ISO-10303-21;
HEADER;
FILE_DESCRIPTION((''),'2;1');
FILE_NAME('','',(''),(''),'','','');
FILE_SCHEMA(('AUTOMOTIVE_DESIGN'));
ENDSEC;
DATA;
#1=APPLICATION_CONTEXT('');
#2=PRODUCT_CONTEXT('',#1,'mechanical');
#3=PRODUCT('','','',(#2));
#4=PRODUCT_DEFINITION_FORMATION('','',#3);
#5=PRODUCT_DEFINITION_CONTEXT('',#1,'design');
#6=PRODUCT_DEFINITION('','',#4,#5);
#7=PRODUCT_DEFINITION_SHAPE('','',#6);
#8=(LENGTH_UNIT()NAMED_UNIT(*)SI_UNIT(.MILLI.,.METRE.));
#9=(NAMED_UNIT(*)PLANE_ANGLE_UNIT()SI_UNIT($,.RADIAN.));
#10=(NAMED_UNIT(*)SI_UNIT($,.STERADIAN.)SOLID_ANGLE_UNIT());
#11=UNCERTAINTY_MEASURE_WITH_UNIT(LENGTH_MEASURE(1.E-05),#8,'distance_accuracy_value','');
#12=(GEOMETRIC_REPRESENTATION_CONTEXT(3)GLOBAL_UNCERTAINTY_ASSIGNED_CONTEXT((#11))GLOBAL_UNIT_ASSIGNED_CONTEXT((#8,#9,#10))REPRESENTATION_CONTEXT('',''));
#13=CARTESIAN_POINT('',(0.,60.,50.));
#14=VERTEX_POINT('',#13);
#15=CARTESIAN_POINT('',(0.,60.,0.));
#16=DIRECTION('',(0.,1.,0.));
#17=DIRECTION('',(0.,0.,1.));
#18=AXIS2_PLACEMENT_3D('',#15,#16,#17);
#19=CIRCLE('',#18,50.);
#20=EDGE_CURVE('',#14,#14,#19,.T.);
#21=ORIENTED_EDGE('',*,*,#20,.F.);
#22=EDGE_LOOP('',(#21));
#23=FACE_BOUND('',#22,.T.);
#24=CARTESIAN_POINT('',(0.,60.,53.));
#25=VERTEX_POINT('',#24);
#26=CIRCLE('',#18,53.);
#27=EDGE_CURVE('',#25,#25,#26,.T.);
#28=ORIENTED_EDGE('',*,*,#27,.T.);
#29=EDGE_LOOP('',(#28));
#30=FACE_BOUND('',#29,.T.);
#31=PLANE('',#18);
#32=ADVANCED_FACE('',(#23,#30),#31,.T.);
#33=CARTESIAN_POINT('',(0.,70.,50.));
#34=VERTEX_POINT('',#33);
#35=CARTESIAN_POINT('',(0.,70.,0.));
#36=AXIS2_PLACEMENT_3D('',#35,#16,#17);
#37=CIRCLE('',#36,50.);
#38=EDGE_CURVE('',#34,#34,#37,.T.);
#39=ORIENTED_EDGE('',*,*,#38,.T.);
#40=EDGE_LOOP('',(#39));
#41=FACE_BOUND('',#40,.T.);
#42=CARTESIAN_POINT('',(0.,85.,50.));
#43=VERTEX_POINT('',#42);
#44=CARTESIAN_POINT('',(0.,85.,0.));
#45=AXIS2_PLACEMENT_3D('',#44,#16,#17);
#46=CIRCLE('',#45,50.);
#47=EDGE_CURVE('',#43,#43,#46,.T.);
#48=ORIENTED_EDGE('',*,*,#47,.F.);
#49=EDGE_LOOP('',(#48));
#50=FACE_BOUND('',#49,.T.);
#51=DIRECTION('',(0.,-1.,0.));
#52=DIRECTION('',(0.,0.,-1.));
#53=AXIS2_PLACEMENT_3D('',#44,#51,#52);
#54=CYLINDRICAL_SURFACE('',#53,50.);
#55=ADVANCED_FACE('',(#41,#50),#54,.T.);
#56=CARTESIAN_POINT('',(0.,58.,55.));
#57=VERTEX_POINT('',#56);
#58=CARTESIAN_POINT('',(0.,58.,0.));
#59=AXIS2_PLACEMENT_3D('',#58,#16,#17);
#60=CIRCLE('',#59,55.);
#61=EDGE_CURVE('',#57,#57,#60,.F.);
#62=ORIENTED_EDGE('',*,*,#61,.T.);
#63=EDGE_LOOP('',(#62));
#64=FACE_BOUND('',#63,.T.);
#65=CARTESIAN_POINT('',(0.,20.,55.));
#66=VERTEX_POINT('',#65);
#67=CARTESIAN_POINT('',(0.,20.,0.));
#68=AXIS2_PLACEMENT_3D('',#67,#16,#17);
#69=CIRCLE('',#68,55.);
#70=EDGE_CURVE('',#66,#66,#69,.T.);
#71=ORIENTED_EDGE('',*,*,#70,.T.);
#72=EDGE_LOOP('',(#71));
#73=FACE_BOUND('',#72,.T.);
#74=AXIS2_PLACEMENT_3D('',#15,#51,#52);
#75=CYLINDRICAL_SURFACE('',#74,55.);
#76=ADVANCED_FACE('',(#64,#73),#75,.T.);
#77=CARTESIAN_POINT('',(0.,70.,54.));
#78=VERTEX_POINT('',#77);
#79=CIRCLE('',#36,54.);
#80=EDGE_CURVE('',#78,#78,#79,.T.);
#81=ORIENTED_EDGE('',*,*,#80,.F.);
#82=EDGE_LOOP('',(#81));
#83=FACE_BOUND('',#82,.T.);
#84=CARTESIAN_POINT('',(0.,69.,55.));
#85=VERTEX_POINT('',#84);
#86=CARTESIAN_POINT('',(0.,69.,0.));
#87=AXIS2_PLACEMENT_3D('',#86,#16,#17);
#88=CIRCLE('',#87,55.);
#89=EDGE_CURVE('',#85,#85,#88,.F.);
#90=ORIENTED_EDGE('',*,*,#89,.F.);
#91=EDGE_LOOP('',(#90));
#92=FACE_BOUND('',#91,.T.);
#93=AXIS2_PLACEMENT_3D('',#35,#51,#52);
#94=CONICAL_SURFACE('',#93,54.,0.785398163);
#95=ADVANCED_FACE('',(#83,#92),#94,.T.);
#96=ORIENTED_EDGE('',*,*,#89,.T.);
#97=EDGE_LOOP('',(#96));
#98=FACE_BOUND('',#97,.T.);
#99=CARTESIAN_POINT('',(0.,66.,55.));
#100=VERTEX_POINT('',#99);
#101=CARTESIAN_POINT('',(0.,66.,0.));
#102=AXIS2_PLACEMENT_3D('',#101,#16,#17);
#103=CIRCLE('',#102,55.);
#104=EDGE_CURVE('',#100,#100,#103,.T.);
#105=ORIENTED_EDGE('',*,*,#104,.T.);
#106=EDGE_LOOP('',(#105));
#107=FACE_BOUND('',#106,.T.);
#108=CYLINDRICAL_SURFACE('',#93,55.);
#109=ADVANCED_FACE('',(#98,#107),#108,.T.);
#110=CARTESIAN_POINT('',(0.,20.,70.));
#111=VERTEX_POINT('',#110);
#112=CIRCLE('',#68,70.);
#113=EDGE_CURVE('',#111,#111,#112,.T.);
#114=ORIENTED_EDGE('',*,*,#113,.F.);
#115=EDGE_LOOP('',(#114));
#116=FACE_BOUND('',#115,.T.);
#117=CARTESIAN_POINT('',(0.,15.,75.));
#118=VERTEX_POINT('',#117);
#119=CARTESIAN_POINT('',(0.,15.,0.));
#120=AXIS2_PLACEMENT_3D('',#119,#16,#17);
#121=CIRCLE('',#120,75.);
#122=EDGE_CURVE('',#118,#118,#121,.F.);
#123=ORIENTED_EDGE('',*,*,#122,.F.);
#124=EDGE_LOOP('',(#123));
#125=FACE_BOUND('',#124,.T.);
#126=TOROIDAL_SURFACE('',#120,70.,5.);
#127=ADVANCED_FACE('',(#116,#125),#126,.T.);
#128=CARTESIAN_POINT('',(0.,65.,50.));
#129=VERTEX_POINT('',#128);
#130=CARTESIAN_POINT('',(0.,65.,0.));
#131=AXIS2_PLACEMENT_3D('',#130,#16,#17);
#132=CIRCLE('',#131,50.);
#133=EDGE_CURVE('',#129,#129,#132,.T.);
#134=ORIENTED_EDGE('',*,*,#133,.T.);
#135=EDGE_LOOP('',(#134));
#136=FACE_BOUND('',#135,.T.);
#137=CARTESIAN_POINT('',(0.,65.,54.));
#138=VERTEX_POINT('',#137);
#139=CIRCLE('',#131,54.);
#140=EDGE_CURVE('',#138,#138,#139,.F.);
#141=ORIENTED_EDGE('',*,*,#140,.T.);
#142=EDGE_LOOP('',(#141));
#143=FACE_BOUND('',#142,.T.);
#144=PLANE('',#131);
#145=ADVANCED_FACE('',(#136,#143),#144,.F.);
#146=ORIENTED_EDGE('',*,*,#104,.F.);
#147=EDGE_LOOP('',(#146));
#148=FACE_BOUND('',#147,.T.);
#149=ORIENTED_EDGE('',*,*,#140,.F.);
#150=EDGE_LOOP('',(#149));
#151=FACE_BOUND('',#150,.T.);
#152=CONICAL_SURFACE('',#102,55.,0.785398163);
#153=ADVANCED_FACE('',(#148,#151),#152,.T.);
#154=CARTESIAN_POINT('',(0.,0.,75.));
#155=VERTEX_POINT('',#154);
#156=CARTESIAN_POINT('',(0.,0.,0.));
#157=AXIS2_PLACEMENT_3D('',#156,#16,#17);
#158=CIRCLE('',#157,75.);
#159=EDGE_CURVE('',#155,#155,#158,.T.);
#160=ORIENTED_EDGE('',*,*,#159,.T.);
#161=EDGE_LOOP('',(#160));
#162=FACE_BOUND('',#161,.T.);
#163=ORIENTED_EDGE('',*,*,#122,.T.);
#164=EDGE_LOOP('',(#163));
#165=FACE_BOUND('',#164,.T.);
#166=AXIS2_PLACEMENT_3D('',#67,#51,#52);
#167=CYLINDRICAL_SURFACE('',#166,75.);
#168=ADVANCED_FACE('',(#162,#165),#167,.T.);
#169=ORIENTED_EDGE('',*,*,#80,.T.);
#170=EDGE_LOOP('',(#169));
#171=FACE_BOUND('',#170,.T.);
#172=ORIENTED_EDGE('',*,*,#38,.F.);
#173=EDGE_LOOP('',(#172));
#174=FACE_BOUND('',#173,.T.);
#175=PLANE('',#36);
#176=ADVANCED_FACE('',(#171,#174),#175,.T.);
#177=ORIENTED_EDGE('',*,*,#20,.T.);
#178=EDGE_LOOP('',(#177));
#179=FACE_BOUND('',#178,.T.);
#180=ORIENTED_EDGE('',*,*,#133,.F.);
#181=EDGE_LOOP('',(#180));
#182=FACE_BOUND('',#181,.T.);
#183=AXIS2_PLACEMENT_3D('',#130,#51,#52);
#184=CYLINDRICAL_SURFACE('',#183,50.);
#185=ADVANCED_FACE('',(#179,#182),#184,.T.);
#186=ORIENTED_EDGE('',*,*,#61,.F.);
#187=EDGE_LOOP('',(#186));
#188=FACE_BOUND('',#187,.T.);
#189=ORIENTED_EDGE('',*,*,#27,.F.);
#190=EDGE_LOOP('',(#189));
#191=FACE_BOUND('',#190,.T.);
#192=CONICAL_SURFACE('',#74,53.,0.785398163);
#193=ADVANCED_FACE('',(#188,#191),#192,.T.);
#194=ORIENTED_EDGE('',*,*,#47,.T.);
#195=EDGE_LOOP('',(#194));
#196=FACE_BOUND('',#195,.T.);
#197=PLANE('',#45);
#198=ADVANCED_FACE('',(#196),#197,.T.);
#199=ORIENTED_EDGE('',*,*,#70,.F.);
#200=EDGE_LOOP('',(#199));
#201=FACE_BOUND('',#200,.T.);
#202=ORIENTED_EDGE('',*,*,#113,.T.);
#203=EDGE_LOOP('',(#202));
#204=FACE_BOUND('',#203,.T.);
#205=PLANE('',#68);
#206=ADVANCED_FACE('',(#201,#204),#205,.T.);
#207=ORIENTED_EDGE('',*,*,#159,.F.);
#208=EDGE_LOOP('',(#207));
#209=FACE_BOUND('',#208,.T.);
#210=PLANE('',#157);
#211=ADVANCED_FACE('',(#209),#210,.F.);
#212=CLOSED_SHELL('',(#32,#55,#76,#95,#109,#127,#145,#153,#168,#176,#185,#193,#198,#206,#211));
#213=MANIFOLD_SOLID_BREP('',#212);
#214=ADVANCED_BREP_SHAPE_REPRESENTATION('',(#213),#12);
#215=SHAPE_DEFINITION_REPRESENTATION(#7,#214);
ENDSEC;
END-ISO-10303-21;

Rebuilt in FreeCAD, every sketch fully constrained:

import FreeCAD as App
import Part
import Sketcher
from FreeCAD import Vector
Q = App.Units.Quantity


def edges_at(feature, points):
    """Names of the edges that pass closest to the given points."""
    edges = feature.Shape.Edges
    near = lambda p: min(range(len(edges)), key=lambda i: edges[i].distToShape(Part.Vertex(*p))[0])
    return sorted({f"Edge{near(p) + 1}" for p in points})

doc = App.newDocument("Part")
body = doc.addObject("PartDesign::Body", "Body")

# Sketch on XZ plane
sketch1 = body.newObject("Sketcher::SketchObject", "Sketch")
sketch1.AttachmentSupport = (doc.getObject("XZ_Plane"), [""])
sketch1.MapMode = "FlatFace"
sketch1.addGeometry(Part.Circle(Vector(0, 0, 0), Vector(0, 0, 1), 75), False)
sketch1.addConstraint(Sketcher.Constraint("Coincident", 0, 3, -1, 1))
sketch1.addConstraint(Sketcher.Constraint("Diameter", 0, Q("150 mm")))
pad1 = body.newObject("PartDesign::Pad", "Pad")
pad1.Profile = sketch1
pad1.Length = 20
pad1.Reversed = True
doc.recompute()

fillet = body.newObject("PartDesign::Fillet", "Fillet")
fillet.Base = (pad1, edges_at(pad1, [(0, 20, -75)]))
fillet.Radius = 5

# Sketch on XZ plane
sketch2 = body.newObject("Sketcher::SketchObject", "Sketch001")
sketch2.AttachmentSupport = (doc.getObject("XZ_Plane"), [""])
sketch2.MapMode = "FlatFace"
sketch2.AttachmentOffset = App.Placement(Vector(0, 0, -20), App.Rotation())
sketch2.addGeometry(Part.Circle(Vector(0, 0, 0), Vector(0, 0, 1), 55), False)
sketch2.addConstraint(Sketcher.Constraint("Coincident", 0, 3, -1, 1))
sketch2.addConstraint(Sketcher.Constraint("Diameter", 0, Q("110 mm")))
pad2 = body.newObject("PartDesign::Pad", "Pad001")
pad2.Profile = sketch2
pad2.Length = 40
pad2.Reversed = True

# Sketch on XZ plane
sketch3 = body.newObject("Sketcher::SketchObject", "Sketch002")
sketch3.AttachmentSupport = (doc.getObject("XZ_Plane"), [""])
sketch3.MapMode = "FlatFace"
sketch3.AttachmentOffset = App.Placement(Vector(0, 0, -60), App.Rotation())
sketch3.addGeometry(Part.Circle(Vector(0, 0, 0), Vector(0, 0, 1), 50), False)
sketch3.addConstraint(Sketcher.Constraint("Coincident", 0, 3, -1, 1))
sketch3.addConstraint(Sketcher.Constraint("Diameter", 0, Q("100 mm")))
pad3 = body.newObject("PartDesign::Pad", "Pad002")
pad3.Profile = sketch3
pad3.Length = 5
pad3.Reversed = True

# Sketch on XZ plane
sketch4 = body.newObject("Sketcher::SketchObject", "Sketch003")
sketch4.AttachmentSupport = (doc.getObject("XZ_Plane"), [""])
sketch4.MapMode = "FlatFace"
sketch4.AttachmentOffset = App.Placement(Vector(0, 0, -65), App.Rotation())
sketch4.addGeometry(Part.Circle(Vector(0, 0, 0), Vector(0, 0, 1), 55), False)
sketch4.addConstraint(Sketcher.Constraint("Coincident", 0, 3, -1, 1))
sketch4.addConstraint(Sketcher.Constraint("Diameter", 0, Q("110 mm")))
pad4 = body.newObject("PartDesign::Pad", "Pad003")
pad4.Profile = sketch4
pad4.Length = 5
pad4.Reversed = True

# Sketch on XZ plane
sketch5 = body.newObject("Sketcher::SketchObject", "Sketch004")
sketch5.AttachmentSupport = (doc.getObject("XZ_Plane"), [""])
sketch5.MapMode = "FlatFace"
sketch5.AttachmentOffset = App.Placement(Vector(0, 0, -70), App.Rotation())
sketch5.addGeometry(Part.Circle(Vector(0, 0, 0), Vector(0, 0, 1), 50), False)
sketch5.addConstraint(Sketcher.Constraint("Coincident", 0, 3, -1, 1))
sketch5.addConstraint(Sketcher.Constraint("Diameter", 0, Q("100 mm")))
pad5 = body.newObject("PartDesign::Pad", "Pad004")
pad5.Profile = sketch5
pad5.Length = 15
pad5.Reversed = True
doc.recompute()

chamfer = body.newObject("PartDesign::Chamfer", "Chamfer")
chamfer.Base = (pad5, edges_at(pad5, [(0, 65, -55), (0, 70, -55)]))
chamfer.Size = 1
doc.recompute()

chamfer2 = body.newObject("PartDesign::Chamfer", "Chamfer001")
chamfer2.Base = (chamfer, edges_at(chamfer, [(0, 60, -55)]))
chamfer2.Size = 2

doc.recompute()
